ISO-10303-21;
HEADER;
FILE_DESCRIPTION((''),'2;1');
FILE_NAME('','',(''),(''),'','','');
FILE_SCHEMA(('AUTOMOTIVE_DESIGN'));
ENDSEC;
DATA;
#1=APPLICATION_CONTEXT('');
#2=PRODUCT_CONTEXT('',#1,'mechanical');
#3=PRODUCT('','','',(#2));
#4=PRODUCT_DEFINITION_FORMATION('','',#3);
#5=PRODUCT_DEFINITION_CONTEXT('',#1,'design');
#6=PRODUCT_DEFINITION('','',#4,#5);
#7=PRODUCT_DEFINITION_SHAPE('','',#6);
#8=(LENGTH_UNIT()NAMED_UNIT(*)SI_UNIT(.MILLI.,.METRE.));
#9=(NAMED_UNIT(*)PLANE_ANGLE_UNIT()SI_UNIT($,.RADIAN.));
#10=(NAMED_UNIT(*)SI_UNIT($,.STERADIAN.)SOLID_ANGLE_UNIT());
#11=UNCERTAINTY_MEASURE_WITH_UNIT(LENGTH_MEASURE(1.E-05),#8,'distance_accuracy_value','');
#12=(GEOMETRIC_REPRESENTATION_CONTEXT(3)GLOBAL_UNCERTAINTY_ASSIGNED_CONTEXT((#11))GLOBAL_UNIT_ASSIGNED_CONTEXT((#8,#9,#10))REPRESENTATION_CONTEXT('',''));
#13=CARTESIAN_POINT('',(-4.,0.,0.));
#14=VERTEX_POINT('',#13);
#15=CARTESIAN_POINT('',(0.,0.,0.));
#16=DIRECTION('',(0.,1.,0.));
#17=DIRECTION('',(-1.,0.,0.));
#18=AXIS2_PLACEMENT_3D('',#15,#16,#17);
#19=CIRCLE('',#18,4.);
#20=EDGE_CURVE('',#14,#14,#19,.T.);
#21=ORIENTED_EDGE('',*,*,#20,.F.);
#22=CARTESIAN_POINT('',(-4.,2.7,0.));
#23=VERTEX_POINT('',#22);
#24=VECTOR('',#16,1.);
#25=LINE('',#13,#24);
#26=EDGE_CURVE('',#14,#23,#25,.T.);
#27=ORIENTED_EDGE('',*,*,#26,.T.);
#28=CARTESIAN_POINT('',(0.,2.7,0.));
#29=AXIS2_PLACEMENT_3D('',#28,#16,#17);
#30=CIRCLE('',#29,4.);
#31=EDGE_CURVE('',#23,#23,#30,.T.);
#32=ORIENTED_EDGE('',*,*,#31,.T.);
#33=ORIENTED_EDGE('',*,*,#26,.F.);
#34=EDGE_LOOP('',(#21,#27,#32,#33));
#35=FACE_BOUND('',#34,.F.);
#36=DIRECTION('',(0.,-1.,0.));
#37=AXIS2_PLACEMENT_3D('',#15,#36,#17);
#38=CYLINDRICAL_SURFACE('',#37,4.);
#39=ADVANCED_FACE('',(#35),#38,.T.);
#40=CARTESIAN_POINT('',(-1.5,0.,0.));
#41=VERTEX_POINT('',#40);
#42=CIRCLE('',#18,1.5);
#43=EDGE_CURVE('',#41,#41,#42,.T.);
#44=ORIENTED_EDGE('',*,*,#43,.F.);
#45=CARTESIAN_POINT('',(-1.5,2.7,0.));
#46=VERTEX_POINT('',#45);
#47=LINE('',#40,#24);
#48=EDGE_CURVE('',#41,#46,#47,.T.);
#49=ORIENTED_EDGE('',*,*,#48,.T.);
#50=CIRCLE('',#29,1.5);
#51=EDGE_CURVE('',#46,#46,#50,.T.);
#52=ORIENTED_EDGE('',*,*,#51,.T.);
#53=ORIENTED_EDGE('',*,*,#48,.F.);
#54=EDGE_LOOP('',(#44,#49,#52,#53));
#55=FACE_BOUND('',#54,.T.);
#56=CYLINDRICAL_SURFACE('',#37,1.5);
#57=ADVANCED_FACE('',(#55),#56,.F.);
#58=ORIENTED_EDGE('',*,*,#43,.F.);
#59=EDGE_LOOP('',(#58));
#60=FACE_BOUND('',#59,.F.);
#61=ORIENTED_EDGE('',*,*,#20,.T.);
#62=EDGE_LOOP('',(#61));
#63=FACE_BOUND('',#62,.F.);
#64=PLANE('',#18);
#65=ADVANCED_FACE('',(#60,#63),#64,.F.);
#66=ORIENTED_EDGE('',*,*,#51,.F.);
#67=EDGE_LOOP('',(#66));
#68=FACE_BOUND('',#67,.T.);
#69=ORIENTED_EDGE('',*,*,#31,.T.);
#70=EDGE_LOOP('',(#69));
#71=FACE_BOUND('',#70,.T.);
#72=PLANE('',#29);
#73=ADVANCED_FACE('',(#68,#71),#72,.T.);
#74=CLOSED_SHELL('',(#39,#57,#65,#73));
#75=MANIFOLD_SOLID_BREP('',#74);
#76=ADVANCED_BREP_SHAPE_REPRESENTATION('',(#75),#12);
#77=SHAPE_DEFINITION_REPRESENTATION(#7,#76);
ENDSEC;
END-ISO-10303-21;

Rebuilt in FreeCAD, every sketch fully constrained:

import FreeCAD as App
import Part
import Sketcher
from FreeCAD import Vector
Q = App.Units.Quantity

doc = App.newDocument("Part")
body = doc.addObject("PartDesign::Body", "Body")

# Sketch on XZ plane
sketch1 = doc.addObject("Sketcher::SketchObject", "Sketch")
body.addObject(sketch1)
sketch1.AttachmentSupport = (doc.XZ_Plane, [""])
sketch1.MapMode = "FlatFace"
sketch1.addGeometry(Part.Circle(Vector(0, 0, 0), Vector(0, 0, 1), 4), False)
sketch1.addGeometry(Part.Circle(Vector(0, 0, 0), Vector(0, 0, 1), 1.5), False)
sketch1.addConstraint(Sketcher.Constraint("Coincident", 0, 3, -1, 1))
sketch1.addConstraint(Sketcher.Constraint("Coincident", 1, 3, -1, 1))
sketch1.addConstraint(Sketcher.Constraint("Diameter", 1, Q("3 mm")))
sketch1.addConstraint(Sketcher.Constraint("Diameter", 0, Q("8 mm")))
pad1 = doc.addObject("PartDesign::Pad", "Pad")
body.addObject(pad1)
pad1.Profile = sketch1
pad1.Length = 2.7
pad1.Reversed = True

doc.recompute()
